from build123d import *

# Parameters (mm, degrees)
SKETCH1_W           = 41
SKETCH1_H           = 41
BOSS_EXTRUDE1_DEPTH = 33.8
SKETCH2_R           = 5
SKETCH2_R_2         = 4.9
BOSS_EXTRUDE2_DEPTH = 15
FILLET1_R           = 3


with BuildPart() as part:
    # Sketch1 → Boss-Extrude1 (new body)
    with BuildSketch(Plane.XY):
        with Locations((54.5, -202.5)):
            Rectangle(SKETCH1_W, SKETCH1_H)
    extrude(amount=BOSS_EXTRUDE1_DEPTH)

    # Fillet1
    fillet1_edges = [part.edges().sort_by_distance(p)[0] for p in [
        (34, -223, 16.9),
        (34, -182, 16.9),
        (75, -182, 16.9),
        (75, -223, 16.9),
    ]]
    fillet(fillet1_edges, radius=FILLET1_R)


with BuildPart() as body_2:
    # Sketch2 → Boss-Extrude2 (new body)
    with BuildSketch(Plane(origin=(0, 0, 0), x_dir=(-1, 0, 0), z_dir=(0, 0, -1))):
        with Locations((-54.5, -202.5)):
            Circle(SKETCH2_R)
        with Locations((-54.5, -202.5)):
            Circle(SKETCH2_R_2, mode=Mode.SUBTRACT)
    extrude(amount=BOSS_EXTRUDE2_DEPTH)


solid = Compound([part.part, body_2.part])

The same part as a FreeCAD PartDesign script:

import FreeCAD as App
import Part
import Sketcher
Q = App.Units.Quantity


def edges_at(feature, points):
    """Names of the edges that pass closest to the given points."""
    edges = feature.Shape.Edges
    near = lambda p: min(range(len(edges)), key=lambda i: edges[i].distToShape(Part.Vertex(*p))[0])
    return sorted({f"Edge{near(p) + 1}" for p in points})


def add_polygon(sketch, points):
    """Adds a closed chain of lines whose ends are joined by coincident constraints."""
    first, n = sketch.GeometryCount, len(points)
    for a, b in zip(points, points[1:] + points[:1]):
        sketch.addGeometry(Part.LineSegment(App.Vector(*a, 0), App.Vector(*b, 0)), False)
    for i in range(n):
        sketch.addConstraint(Sketcher.Constraint("Coincident", first + i, 2, first + (i + 1) % n, 1))

doc = App.newDocument("Part")
params = doc.addObject("Spreadsheet::Sheet", "Params")
for row, (alias, value) in enumerate([
    ("sketch1_width", "41 mm"),
    ("pad1_length", "33.8 mm"),
    ("fillet_radius", "3 mm"),
    ("sketch2_diameter", "10 mm"),
    ("sketch2_diameter2", "9.8 mm"),
    ("pad2_length", "15 mm"),
], start=1):
    params.set(f"A{row}", alias)
    params.set(f"B{row}", "=" + value)
    params.setAlias(f"B{row}", alias)

body = doc.addObject("PartDesign::Body", "Body")

# Sketch on XY plane
sketch1 = body.newObject("Sketcher::SketchObject", "Sketch")
sketch1.AttachmentSupport = (doc.getObject("XY_Plane"), [""])
sketch1.MapMode = "FlatFace"
add_polygon(sketch1, [(34, -182), (34, -223), (75, -223), (75, -182)])  # lines 0-3
sketch1.addConstraint(Sketcher.Constraint("Vertical", 0))
sketch1.addConstraint(Sketcher.Constraint("Horizontal", 1))
sketch1.addConstraint(Sketcher.Constraint("Vertical", 2))
sketch1.addConstraint(Sketcher.Constraint("Horizontal", 3))
sketch1.addConstraint(Sketcher.Constraint("Equal", 3, 0))
sketch1.addConstraint(Sketcher.Constraint("DistanceX", 1, 1, 1, 2, Q("41 mm")))
sketch1.addConstraint(Sketcher.Constraint("DistanceX", -1, 1, 0, 2, Q("34 mm")))
sketch1.addConstraint(Sketcher.Constraint("DistanceY", 0, 2, -1, 1, Q("223 mm")))
sketch1.setExpression("Constraints[9]", "Params.sketch1_width")
pad1 = body.newObject("PartDesign::Pad", "Pad")
pad1.Profile = sketch1
pad1.setExpression("Length", "Params.pad1_length")
doc.recompute()

fillet = body.newObject("PartDesign::Fillet", "Fillet")
fillet.Base = (pad1, edges_at(pad1, [
    (34, -223, 16.9),
    (34, -182, 16.9),
    (75, -182, 16.9),
    (75, -223, 16.9),
]))
fillet.setExpression("Radius", "Params.fillet_radius")
body2 = doc.addObject("PartDesign::Body", "Body001")

# Sketch on XY plane
sketch2 = body2.newObject("Sketcher::SketchObject", "Sketch001")
sketch2.AttachmentSupport = (doc.getObject("XY_Plane001"), [""])
sketch2.MapMode = "FlatFace"
sketch2.addGeometry(Part.Circle(App.Vector(54.5, -202.5, 0), App.Vector(0, 0, 1), 5), False)
sketch2.addGeometry(Part.Circle(App.Vector(54.5, -202.5, 0), App.Vector(0, 0, 1), 4.9), False)
sketch2.addConstraint(Sketcher.Constraint("Coincident", 1, 3, 0, 3))
sketch2.addConstraint(Sketcher.Constraint("Diameter", 0, Q("10 mm")))
sketch2.addConstraint(Sketcher.Constraint("Diameter", 1, Q("9.8 mm")))
sketch2.addConstraint(Sketcher.Constraint("DistanceX", -1, 1, 0, 3, Q("54.5 mm")))
sketch2.addConstraint(Sketcher.Constraint("DistanceY", 0, 3, -1, 1, Q("202.5 mm")))
sketch2.setExpression("Constraints[1]", "Params.sketch2_diameter")
sketch2.setExpression("Constraints[2]", "Params.sketch2_diameter2")
pad2 = body2.newObject("PartDesign::Pad", "Pad001")
pad2.Profile = sketch2
pad2.setExpression("Length", "Params.pad2_length")
pad2.Reversed = True

doc.recompute()
